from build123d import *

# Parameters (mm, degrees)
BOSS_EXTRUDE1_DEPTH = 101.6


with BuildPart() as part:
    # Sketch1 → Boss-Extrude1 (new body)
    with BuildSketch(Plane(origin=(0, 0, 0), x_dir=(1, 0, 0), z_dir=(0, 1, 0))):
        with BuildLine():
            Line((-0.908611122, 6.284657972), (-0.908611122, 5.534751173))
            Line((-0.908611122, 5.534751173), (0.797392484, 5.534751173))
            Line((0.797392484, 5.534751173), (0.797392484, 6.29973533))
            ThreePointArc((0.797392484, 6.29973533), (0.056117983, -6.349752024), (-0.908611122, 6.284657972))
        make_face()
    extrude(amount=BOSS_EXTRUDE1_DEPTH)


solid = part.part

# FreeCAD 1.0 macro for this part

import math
import FreeCAD as App
import Part
import Sketcher

V = App.Vector
Q = App.Units.Quantity

doc = App.newDocument("Part")
body = doc.addObject("PartDesign::Body", "Body")

# Sketch on XZ plane
sketch1 = body.newObject("Sketcher::SketchObject", "Sketch")
sketch1.AttachmentSupport = (doc.getObject("XZ_Plane"), [""])
sketch1.MapMode = "FlatFace"
sketch1.addGeometry([
    Part.LineSegment(V(-0.9, -5.5, 0), V(-0.9, -6.3, 0)),
    Part.ArcOfCircle(Part.Circle(V(0, 0, 0), V(0, 0, 1), 6.3), math.radians(-83), math.radians(262)),
    Part.LineSegment(V(0.8, -6.3, 0), V(0.8, -5.5, 0)),
    Part.LineSegment(V(0.8, -5.5, 0), V(-0.9, -5.5, 0)),
], False)
sketch1.addConstraint([
    Sketcher.Constraint("Coincident", 0, 2, 1, 2),
    Sketcher.Constraint("Coincident", 1, 1, 2, 1),
    Sketcher.Constraint("Coincident", 2, 2, 3, 1),
    Sketcher.Constraint("Coincident", 3, 2, 0, 1),
    Sketcher.Constraint("Vertical", 0),
    Sketcher.Constraint("Vertical", 2),
    Sketcher.Constraint("Horizontal", 3),
    Sketcher.Constraint("Coincident", 1, 3, -1, 1),
    Sketcher.Constraint("Radius", 1, Q("0.25 in")),
    Sketcher.Constraint("DistanceX", 3, 2, 3, 1, Q("1.706004 mm")),
    Sketcher.Constraint("DistanceY", 0, 2, 0, 1, Q("0.749907 mm")),
    Sketcher.Constraint("DistanceY", 2, 1, 2, 2, Q("0.764984 mm")),
])
pad1 = body.newObject("PartDesign::Pad", "Pad")
pad1.Profile = sketch1
pad1.Length = Q("4 in")
pad1.Reversed = True

doc.recompute()
